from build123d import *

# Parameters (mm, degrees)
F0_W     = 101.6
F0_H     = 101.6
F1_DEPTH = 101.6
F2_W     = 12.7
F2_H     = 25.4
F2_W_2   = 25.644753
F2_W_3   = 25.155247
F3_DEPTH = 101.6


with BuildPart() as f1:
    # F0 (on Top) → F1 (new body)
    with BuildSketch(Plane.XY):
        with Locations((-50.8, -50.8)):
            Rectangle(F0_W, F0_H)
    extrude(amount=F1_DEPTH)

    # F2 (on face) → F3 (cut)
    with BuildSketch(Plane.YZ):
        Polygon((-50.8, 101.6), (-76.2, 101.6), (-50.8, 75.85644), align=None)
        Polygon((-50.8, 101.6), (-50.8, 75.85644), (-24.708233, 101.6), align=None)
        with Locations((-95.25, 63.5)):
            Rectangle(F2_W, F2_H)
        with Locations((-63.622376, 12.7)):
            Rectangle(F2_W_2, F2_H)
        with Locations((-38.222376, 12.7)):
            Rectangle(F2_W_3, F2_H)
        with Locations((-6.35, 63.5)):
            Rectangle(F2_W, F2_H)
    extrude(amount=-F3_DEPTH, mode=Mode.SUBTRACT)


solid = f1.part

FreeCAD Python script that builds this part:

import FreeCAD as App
import Part
import Sketcher
from FreeCAD import Vector
Q = App.Units.Quantity


def add_polygon(sketch, points):
    """Adds a closed chain of lines whose ends are joined by coincident constraints."""
    first, n = sketch.GeometryCount, len(points)
    for a, b in zip(points, points[1:] + points[:1]):
        sketch.addGeometry(Part.LineSegment(App.Vector(*a, 0), App.Vector(*b, 0)), False)
    for i in range(n):
        sketch.addConstraint(Sketcher.Constraint("Coincident", first + i, 2, first + (i + 1) % n, 1))

doc = App.newDocument("Part")
body = doc.addObject("PartDesign::Body", "Body")

# Sketch on XY plane
sketch1 = doc.addObject("Sketcher::SketchObject", "Sketch")
body.addObject(sketch1)
sketch1.AttachmentSupport = (doc.XY_Plane, [""])
sketch1.MapMode = "FlatFace"
add_polygon(sketch1, [(-102, 0), (-102, -102), (0, -102), (0, 0)])  # lines 0-3
sketch1.addConstraint([
    Sketcher.Constraint("Vertical", 0),
    Sketcher.Constraint("Horizontal", 1),
    Sketcher.Constraint("Vertical", 2),
    Sketcher.Constraint("Horizontal", 3),
    Sketcher.Constraint("Coincident", 2, 2, -1, 1),
    Sketcher.Constraint("Equal", 3, 0),
    Sketcher.Constraint("DistanceX", 1, 1, 1, 2, Q("4 in")),
])
pad1 = doc.addObject("PartDesign::Pad", "Pad")
body.addObject(pad1)
pad1.Profile = sketch1
pad1.Length = Q("4 in")

# Sketch on YZ plane
sketch2 = doc.addObject("Sketcher::SketchObject", "Sketch001")
body.addObject(sketch2)
sketch2.AttachmentSupport = (doc.YZ_Plane, [""])
sketch2.MapMode = "FlatFace"
add_polygon(sketch2, [(-76, 102), (-51, 76), (-25, 102)])  # lines 0-2
add_polygon(sketch2, [(-102, 76), (-102, 51), (-89, 51), (-89, 76)])  # lines 3-6
add_polygon(sketch2, [(-76, 25), (-76, 0), (-26, 0), (-26, 25)])  # lines 7-10
add_polygon(sketch2, [(-13, 76), (-13, 51), (0, 51), (0, 76)])  # lines 11-14
sketch2.addConstraint([
    Sketcher.Constraint("Horizontal", 2),
    Sketcher.Constraint("Vertical", 3),
    Sketcher.Constraint("Horizontal", 4),
    Sketcher.Constraint("Vertical", 5),
    Sketcher.Constraint("Horizontal", 6),
    Sketcher.Constraint("Vertical", 7),
    Sketcher.Constraint("Horizontal", 8),
    Sketcher.Constraint("Vertical", 9),
    Sketcher.Constraint("Horizontal", 10),
    Sketcher.Constraint("Vertical", 11),
    Sketcher.Constraint("Horizontal", 12),
    Sketcher.Constraint("Vertical", 13),
    Sketcher.Constraint("Horizontal", 14),
    Sketcher.Constraint("PointOnObject", 7, 2, -1),
    Sketcher.Constraint("PointOnObject", 12, 2, -2),
    Sketcher.Constraint("Perpendicular", 0, 1),
    Sketcher.Constraint("Horizontal", 4, 2, 11, 2),
    Sketcher.Constraint("Horizontal", 6, 2, 13, 2),
    Sketcher.Constraint("Equal", 6, 12),
    Sketcher.Constraint("Equal", 5, 7),
    Sketcher.Constraint("DistanceX", 8, 1, 8, 2, Q("2 in")),
    Sketcher.Constraint("DistanceY", 3, 2, 3, 1, Q("1 in")),
    Sketcher.Constraint("DistanceX", 4, 1, 4, 2, Q("0.5 in")),
    Sketcher.Constraint("DistanceX", 0, 2, -1, 1, Q("2 in")),
    Sketcher.Constraint("DistanceY", -1, 1, 1, 2, Q("4 in")),
    Sketcher.Constraint("DistanceX", 2, 2, -1, 1, Q("3 in")),
    Sketcher.Constraint("DistanceX", 3, 2, -1, 1, Q("4 in")),
    Sketcher.Constraint("DistanceY", -1, 1, 3, 2, Q("2 in")),
    Sketcher.Constraint("Distance", 1, Q("36.653938 mm")),
    Sketcher.Constraint("DistanceX", 9, 2, 1, 2, Q("0.936519 mm")),
])
pocket1 = doc.addObject("PartDesign::Pocket", "Pocket")
body.addObject(pocket1)
pocket1.Profile = sketch2
pocket1.Length = Q("4 in")

doc.recompute()
